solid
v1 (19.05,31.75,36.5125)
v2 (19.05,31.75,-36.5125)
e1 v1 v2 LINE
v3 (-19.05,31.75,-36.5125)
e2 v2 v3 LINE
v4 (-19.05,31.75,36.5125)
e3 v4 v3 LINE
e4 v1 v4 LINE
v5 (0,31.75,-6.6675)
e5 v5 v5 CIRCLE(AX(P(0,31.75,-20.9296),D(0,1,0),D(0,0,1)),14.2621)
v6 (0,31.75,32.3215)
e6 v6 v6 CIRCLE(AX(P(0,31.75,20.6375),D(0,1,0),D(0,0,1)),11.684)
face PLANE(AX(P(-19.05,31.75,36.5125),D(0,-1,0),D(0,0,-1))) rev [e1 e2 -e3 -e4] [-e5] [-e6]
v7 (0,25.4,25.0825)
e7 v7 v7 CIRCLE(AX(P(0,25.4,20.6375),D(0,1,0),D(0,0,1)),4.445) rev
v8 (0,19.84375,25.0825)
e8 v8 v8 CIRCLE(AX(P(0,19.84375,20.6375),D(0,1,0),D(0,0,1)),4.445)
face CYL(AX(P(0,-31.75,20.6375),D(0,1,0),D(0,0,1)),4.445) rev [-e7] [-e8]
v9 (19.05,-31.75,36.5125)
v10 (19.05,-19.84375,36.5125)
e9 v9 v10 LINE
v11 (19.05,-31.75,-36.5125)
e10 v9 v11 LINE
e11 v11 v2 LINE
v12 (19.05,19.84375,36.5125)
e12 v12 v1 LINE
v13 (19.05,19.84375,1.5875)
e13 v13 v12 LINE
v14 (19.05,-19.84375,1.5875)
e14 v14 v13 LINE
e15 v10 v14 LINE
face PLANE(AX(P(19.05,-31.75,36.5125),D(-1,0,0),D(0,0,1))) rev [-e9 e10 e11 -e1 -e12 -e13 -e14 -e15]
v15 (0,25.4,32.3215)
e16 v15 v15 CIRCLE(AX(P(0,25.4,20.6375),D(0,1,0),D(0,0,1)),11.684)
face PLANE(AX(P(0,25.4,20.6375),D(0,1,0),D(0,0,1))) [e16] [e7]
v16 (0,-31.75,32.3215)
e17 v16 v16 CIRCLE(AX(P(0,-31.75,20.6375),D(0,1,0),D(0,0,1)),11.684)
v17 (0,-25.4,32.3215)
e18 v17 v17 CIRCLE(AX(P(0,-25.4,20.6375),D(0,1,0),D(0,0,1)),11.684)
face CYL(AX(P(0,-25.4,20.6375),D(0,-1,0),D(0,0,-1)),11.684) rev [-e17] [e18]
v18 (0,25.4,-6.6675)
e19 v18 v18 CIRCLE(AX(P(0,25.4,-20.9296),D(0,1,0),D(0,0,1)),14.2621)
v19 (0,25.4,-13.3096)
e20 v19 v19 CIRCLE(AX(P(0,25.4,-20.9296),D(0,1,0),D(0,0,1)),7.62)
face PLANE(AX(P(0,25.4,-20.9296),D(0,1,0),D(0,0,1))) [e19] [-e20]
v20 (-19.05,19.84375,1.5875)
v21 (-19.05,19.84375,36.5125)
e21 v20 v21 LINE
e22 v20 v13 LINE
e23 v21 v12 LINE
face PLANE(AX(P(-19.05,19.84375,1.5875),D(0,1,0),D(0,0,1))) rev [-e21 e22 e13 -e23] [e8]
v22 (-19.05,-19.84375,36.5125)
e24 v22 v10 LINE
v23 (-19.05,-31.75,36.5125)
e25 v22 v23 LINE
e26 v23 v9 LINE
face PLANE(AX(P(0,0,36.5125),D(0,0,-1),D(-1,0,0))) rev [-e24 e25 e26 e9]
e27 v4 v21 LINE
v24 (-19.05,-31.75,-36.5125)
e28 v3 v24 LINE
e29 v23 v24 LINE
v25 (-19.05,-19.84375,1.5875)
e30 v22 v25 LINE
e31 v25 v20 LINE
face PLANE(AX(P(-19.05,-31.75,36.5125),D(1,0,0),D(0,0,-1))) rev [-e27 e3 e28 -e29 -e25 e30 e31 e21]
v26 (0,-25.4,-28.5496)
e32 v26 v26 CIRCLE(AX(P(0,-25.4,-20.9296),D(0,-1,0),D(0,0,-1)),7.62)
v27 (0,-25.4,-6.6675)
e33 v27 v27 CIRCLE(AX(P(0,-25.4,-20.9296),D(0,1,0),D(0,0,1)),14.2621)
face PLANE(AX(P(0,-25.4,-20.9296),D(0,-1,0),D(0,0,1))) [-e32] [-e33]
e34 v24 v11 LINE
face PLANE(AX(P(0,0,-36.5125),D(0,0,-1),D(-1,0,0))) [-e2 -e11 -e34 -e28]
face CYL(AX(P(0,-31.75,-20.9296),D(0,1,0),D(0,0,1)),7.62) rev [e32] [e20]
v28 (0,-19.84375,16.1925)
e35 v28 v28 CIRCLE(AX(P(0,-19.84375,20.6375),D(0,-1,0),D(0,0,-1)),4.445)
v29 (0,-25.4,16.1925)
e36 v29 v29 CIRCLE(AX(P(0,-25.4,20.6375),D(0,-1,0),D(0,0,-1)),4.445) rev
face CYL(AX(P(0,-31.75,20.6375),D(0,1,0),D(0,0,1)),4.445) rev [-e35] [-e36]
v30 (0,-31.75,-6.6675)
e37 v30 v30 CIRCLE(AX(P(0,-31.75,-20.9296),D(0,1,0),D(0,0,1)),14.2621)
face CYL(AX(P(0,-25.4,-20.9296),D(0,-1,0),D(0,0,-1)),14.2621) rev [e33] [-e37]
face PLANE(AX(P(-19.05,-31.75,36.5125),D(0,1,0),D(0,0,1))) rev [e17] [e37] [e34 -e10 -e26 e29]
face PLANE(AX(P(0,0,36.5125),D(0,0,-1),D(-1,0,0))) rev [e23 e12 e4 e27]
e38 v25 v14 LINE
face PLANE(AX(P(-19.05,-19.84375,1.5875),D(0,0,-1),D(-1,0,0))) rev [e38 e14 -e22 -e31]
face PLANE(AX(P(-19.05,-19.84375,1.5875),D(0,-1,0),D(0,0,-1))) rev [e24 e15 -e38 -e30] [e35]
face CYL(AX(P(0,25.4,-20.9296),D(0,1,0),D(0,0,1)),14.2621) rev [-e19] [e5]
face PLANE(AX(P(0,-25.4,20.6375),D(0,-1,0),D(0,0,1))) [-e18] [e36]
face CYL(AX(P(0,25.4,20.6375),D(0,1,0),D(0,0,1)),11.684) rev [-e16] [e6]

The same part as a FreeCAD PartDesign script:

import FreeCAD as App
import Part
import Sketcher
from FreeCAD import Vector
Q = App.Units.Quantity

doc = App.newDocument("Part")
body = doc.addObject("PartDesign::Body", "Body")

# Sketch on XY plane
sketch1 = body.newObject("Sketcher::SketchObject", "Sketch")
sketch1.AttachmentSupport = (doc.getObject("XY_Plane"), [""])
sketch1.MapMode = "FlatFace"
sketch1.addGeometry([
    Part.LineSegment(Vector(-19.05, 31.75, 0), Vector(-19.05, -31.75, 0)),
    Part.LineSegment(Vector(-19.05, -31.75, 0), Vector(19.05, -31.75, 0)),
    Part.LineSegment(Vector(19.05, -31.75, 0), Vector(19.05, 31.75, 0)),
    Part.LineSegment(Vector(19.05, 31.75, 0), Vector(-19.05, 31.75, 0)),
], False)
sketch1.addConstraint([
    Sketcher.Constraint("Coincident", 0, 2, 1, 1),
    Sketcher.Constraint("Coincident", 1, 2, 2, 1),
    Sketcher.Constraint("Coincident", 2, 2, 3, 1),
    Sketcher.Constraint("Coincident", 3, 2, 0, 1),
    Sketcher.Constraint("Vertical", 0),
    Sketcher.Constraint("Horizontal", 1),
    Sketcher.Constraint("Vertical", 2),
    Sketcher.Constraint("Horizontal", 3),
    Sketcher.Constraint("Symmetric", 0, 2, 2, 2, -1, 1),
    Sketcher.Constraint("DistanceX", 1, 1, 1, 2, Q("1.5 in")),
    Sketcher.Constraint("DistanceY", 0, 2, 0, 1, Q("2.5 in")),
])
pad1 = body.newObject("PartDesign::Pad", "Pad")
pad1.Profile = sketch1
pad1.Length = Q("2.875 in")
pad1.Midplane = True

# Sketch on YZ plane
sketch2 = body.newObject("Sketcher::SketchObject", "Sketch001")
sketch2.AttachmentSupport = (doc.getObject("YZ_Plane"), [""])
sketch2.MapMode = "FlatFace"
sketch2.AttachmentOffset = App.Placement(Vector(0, 0, 0.75 * 25.4), App.Rotation())
sketch2.addGeometry([
    Part.LineSegment(Vector(19.84375, 36.5125, 0), Vector(-19.84375, 36.5125, 0)),
    Part.LineSegment(Vector(-19.84375, 36.5125, 0), Vector(-19.84375, 1.5875, 0)),
    Part.LineSegment(Vector(-19.84375, 1.5875, 0), Vector(19.84375, 1.5875, 0)),
    Part.LineSegment(Vector(19.84375, 1.5875, 0), Vector(19.84375, 36.5125, 0)),
], False)
sketch2.addConstraint([
    Sketcher.Constraint("Coincident", 0, 2, 1, 1),
    Sketcher.Constraint("Coincident", 1, 2, 2, 1),
    Sketcher.Constraint("Coincident", 2, 2, 3, 1),
    Sketcher.Constraint("Coincident", 3, 2, 0, 1),
    Sketcher.Constraint("Horizontal", 0),
    Sketcher.Constraint("Vertical", 1),
    Sketcher.Constraint("Horizontal", 2),
    Sketcher.Constraint("Vertical", 3),
    Sketcher.Constraint("DistanceX", 0, 2, 0, 1, Q("1.5625 in")),
    Sketcher.Constraint("DistanceY", 1, 2, 1, 1, Q("1.375 in")),
    Sketcher.Constraint("DistanceX", 0, 2, -1, 1, Q("0.78125 in")),
    Sketcher.Constraint("DistanceY", -1, 1, 0, 2, Q("1.4375 in")),
])
pocket1 = body.newObject("PartDesign::Pocket", "Pocket")
pocket1.Profile = sketch2
pocket1.Type = "ThroughAll"

# Sketch on XZ plane
sketch3 = body.newObject("Sketcher::SketchObject", "Sketch002")
sketch3.AttachmentSupport = (doc.getObject("XZ_Plane"), [""])
sketch3.MapMode = "FlatFace"
sketch3.AttachmentOffset = App.Placement(Vector(0, 0, -1.25 * 25.4), App.Rotation())
sketch3.addGeometry(Part.Circle(Vector(0, 20.6375, 0), Vector(0, 0, 1), 4.445), False)
sketch3.addConstraint([
    Sketcher.Constraint("PointOnObject", 0, 3, -2),
    Sketcher.Constraint("Diameter", 0, Q("0.35 in")),
    Sketcher.Constraint("DistanceY", -1, 1, 0, 3, Q("0.8125 in")),
])
pocket2 = body.newObject("PartDesign::Pocket", "Pocket001")
pocket2.Profile = sketch3
pocket2.Type = "ThroughAll"
pocket2.Reversed = True

# Sketch on XZ plane
sketch4 = body.newObject("Sketcher::SketchObject", "Sketch003")
sketch4.AttachmentSupport = (doc.getObject("XZ_Plane"), [""])
sketch4.MapMode = "FlatFace"
sketch4.AttachmentOffset = App.Placement(Vector(0, 0, -1.25 * 25.4), App.Rotation())
sketch4.addGeometry(Part.Circle(Vector(0, 20.6375, 0), Vector(0, 0, 1), 11.684), False)
sketch4.addConstraint([
    Sketcher.Constraint("PointOnObject", 0, 3, -2),
    Sketcher.Constraint("Diameter", 0, Q("0.92 in")),
    Sketcher.Constraint("DistanceY", -1, 1, 0, 3, Q("0.8125 in")),
])
pocket3 = body.newObject("PartDesign::Pocket", "Pocket002")
pocket3.Profile = sketch4
pocket3.Length = Q("0.25 in")
pocket3.Reversed = True

# Sketch on XZ plane
sketch5 = body.newObject("Sketcher::SketchObject", "Sketch004")
sketch5.AttachmentSupport = (doc.getObject("XZ_Plane"), [""])
sketch5.MapMode = "FlatFace"
sketch5.AttachmentOffset = App.Placement(Vector(0, 0, -1.25 * 25.4), App.Rotation())
sketch5.addGeometry(Part.Circle(Vector(0, -20.9296, 0), Vector(0, 0, 1), 14.2621), False)
sketch5.addConstraint([
    Sketcher.Constraint("PointOnObject", 0, 3, -2),
    Sketcher.Constraint("Diameter", 0, Q("1.123 in")),
    Sketcher.Constraint("DistanceY", 0, 3, -1, 1, Q("0.824 in")),
])
pocket4 = body.newObject("PartDesign::Pocket", "Pocket003")
pocket4.Profile = sketch5
pocket4.Length = Q("0.25 in")
pocket4.Reversed = True
doc.recompute()

mirrored = body.newObject("PartDesign::Mirrored", "Mirrored")
mirrored.Originals = [pocket3, pocket4]
mirrored.MirrorPlane = (doc.getObject("XZ_Plane"), [""])
body.Tip = mirrored

# Sketch on XZ plane
sketch6 = body.newObject("Sketcher::SketchObject", "Sketch005")
sketch6.AttachmentSupport = (doc.getObject("XZ_Plane"), [""])
sketch6.MapMode = "FlatFace"
sketch6.AttachmentOffset = App.Placement(Vector(0, 0, -1 * 25.4), App.Rotation())
sketch6.addGeometry(Part.Circle(Vector(0, -20.9296, 0), Vector(0, 0, 1), 7.62), False)
sketch6.addConstraint([
    Sketcher.Constraint("PointOnObject", 0, 3, -2),
    Sketcher.Constraint("Diameter", 0, Q("0.6 in")),
    Sketcher.Constraint("DistanceY", 0, 3, -1, 1, Q("0.824 in")),
])
pocket5 = body.newObject("PartDesign::Pocket", "Pocket004")
pocket5.Profile = sketch6
pocket5.Type = "ThroughAll"
pocket5.Reversed = True

doc.recompute()
